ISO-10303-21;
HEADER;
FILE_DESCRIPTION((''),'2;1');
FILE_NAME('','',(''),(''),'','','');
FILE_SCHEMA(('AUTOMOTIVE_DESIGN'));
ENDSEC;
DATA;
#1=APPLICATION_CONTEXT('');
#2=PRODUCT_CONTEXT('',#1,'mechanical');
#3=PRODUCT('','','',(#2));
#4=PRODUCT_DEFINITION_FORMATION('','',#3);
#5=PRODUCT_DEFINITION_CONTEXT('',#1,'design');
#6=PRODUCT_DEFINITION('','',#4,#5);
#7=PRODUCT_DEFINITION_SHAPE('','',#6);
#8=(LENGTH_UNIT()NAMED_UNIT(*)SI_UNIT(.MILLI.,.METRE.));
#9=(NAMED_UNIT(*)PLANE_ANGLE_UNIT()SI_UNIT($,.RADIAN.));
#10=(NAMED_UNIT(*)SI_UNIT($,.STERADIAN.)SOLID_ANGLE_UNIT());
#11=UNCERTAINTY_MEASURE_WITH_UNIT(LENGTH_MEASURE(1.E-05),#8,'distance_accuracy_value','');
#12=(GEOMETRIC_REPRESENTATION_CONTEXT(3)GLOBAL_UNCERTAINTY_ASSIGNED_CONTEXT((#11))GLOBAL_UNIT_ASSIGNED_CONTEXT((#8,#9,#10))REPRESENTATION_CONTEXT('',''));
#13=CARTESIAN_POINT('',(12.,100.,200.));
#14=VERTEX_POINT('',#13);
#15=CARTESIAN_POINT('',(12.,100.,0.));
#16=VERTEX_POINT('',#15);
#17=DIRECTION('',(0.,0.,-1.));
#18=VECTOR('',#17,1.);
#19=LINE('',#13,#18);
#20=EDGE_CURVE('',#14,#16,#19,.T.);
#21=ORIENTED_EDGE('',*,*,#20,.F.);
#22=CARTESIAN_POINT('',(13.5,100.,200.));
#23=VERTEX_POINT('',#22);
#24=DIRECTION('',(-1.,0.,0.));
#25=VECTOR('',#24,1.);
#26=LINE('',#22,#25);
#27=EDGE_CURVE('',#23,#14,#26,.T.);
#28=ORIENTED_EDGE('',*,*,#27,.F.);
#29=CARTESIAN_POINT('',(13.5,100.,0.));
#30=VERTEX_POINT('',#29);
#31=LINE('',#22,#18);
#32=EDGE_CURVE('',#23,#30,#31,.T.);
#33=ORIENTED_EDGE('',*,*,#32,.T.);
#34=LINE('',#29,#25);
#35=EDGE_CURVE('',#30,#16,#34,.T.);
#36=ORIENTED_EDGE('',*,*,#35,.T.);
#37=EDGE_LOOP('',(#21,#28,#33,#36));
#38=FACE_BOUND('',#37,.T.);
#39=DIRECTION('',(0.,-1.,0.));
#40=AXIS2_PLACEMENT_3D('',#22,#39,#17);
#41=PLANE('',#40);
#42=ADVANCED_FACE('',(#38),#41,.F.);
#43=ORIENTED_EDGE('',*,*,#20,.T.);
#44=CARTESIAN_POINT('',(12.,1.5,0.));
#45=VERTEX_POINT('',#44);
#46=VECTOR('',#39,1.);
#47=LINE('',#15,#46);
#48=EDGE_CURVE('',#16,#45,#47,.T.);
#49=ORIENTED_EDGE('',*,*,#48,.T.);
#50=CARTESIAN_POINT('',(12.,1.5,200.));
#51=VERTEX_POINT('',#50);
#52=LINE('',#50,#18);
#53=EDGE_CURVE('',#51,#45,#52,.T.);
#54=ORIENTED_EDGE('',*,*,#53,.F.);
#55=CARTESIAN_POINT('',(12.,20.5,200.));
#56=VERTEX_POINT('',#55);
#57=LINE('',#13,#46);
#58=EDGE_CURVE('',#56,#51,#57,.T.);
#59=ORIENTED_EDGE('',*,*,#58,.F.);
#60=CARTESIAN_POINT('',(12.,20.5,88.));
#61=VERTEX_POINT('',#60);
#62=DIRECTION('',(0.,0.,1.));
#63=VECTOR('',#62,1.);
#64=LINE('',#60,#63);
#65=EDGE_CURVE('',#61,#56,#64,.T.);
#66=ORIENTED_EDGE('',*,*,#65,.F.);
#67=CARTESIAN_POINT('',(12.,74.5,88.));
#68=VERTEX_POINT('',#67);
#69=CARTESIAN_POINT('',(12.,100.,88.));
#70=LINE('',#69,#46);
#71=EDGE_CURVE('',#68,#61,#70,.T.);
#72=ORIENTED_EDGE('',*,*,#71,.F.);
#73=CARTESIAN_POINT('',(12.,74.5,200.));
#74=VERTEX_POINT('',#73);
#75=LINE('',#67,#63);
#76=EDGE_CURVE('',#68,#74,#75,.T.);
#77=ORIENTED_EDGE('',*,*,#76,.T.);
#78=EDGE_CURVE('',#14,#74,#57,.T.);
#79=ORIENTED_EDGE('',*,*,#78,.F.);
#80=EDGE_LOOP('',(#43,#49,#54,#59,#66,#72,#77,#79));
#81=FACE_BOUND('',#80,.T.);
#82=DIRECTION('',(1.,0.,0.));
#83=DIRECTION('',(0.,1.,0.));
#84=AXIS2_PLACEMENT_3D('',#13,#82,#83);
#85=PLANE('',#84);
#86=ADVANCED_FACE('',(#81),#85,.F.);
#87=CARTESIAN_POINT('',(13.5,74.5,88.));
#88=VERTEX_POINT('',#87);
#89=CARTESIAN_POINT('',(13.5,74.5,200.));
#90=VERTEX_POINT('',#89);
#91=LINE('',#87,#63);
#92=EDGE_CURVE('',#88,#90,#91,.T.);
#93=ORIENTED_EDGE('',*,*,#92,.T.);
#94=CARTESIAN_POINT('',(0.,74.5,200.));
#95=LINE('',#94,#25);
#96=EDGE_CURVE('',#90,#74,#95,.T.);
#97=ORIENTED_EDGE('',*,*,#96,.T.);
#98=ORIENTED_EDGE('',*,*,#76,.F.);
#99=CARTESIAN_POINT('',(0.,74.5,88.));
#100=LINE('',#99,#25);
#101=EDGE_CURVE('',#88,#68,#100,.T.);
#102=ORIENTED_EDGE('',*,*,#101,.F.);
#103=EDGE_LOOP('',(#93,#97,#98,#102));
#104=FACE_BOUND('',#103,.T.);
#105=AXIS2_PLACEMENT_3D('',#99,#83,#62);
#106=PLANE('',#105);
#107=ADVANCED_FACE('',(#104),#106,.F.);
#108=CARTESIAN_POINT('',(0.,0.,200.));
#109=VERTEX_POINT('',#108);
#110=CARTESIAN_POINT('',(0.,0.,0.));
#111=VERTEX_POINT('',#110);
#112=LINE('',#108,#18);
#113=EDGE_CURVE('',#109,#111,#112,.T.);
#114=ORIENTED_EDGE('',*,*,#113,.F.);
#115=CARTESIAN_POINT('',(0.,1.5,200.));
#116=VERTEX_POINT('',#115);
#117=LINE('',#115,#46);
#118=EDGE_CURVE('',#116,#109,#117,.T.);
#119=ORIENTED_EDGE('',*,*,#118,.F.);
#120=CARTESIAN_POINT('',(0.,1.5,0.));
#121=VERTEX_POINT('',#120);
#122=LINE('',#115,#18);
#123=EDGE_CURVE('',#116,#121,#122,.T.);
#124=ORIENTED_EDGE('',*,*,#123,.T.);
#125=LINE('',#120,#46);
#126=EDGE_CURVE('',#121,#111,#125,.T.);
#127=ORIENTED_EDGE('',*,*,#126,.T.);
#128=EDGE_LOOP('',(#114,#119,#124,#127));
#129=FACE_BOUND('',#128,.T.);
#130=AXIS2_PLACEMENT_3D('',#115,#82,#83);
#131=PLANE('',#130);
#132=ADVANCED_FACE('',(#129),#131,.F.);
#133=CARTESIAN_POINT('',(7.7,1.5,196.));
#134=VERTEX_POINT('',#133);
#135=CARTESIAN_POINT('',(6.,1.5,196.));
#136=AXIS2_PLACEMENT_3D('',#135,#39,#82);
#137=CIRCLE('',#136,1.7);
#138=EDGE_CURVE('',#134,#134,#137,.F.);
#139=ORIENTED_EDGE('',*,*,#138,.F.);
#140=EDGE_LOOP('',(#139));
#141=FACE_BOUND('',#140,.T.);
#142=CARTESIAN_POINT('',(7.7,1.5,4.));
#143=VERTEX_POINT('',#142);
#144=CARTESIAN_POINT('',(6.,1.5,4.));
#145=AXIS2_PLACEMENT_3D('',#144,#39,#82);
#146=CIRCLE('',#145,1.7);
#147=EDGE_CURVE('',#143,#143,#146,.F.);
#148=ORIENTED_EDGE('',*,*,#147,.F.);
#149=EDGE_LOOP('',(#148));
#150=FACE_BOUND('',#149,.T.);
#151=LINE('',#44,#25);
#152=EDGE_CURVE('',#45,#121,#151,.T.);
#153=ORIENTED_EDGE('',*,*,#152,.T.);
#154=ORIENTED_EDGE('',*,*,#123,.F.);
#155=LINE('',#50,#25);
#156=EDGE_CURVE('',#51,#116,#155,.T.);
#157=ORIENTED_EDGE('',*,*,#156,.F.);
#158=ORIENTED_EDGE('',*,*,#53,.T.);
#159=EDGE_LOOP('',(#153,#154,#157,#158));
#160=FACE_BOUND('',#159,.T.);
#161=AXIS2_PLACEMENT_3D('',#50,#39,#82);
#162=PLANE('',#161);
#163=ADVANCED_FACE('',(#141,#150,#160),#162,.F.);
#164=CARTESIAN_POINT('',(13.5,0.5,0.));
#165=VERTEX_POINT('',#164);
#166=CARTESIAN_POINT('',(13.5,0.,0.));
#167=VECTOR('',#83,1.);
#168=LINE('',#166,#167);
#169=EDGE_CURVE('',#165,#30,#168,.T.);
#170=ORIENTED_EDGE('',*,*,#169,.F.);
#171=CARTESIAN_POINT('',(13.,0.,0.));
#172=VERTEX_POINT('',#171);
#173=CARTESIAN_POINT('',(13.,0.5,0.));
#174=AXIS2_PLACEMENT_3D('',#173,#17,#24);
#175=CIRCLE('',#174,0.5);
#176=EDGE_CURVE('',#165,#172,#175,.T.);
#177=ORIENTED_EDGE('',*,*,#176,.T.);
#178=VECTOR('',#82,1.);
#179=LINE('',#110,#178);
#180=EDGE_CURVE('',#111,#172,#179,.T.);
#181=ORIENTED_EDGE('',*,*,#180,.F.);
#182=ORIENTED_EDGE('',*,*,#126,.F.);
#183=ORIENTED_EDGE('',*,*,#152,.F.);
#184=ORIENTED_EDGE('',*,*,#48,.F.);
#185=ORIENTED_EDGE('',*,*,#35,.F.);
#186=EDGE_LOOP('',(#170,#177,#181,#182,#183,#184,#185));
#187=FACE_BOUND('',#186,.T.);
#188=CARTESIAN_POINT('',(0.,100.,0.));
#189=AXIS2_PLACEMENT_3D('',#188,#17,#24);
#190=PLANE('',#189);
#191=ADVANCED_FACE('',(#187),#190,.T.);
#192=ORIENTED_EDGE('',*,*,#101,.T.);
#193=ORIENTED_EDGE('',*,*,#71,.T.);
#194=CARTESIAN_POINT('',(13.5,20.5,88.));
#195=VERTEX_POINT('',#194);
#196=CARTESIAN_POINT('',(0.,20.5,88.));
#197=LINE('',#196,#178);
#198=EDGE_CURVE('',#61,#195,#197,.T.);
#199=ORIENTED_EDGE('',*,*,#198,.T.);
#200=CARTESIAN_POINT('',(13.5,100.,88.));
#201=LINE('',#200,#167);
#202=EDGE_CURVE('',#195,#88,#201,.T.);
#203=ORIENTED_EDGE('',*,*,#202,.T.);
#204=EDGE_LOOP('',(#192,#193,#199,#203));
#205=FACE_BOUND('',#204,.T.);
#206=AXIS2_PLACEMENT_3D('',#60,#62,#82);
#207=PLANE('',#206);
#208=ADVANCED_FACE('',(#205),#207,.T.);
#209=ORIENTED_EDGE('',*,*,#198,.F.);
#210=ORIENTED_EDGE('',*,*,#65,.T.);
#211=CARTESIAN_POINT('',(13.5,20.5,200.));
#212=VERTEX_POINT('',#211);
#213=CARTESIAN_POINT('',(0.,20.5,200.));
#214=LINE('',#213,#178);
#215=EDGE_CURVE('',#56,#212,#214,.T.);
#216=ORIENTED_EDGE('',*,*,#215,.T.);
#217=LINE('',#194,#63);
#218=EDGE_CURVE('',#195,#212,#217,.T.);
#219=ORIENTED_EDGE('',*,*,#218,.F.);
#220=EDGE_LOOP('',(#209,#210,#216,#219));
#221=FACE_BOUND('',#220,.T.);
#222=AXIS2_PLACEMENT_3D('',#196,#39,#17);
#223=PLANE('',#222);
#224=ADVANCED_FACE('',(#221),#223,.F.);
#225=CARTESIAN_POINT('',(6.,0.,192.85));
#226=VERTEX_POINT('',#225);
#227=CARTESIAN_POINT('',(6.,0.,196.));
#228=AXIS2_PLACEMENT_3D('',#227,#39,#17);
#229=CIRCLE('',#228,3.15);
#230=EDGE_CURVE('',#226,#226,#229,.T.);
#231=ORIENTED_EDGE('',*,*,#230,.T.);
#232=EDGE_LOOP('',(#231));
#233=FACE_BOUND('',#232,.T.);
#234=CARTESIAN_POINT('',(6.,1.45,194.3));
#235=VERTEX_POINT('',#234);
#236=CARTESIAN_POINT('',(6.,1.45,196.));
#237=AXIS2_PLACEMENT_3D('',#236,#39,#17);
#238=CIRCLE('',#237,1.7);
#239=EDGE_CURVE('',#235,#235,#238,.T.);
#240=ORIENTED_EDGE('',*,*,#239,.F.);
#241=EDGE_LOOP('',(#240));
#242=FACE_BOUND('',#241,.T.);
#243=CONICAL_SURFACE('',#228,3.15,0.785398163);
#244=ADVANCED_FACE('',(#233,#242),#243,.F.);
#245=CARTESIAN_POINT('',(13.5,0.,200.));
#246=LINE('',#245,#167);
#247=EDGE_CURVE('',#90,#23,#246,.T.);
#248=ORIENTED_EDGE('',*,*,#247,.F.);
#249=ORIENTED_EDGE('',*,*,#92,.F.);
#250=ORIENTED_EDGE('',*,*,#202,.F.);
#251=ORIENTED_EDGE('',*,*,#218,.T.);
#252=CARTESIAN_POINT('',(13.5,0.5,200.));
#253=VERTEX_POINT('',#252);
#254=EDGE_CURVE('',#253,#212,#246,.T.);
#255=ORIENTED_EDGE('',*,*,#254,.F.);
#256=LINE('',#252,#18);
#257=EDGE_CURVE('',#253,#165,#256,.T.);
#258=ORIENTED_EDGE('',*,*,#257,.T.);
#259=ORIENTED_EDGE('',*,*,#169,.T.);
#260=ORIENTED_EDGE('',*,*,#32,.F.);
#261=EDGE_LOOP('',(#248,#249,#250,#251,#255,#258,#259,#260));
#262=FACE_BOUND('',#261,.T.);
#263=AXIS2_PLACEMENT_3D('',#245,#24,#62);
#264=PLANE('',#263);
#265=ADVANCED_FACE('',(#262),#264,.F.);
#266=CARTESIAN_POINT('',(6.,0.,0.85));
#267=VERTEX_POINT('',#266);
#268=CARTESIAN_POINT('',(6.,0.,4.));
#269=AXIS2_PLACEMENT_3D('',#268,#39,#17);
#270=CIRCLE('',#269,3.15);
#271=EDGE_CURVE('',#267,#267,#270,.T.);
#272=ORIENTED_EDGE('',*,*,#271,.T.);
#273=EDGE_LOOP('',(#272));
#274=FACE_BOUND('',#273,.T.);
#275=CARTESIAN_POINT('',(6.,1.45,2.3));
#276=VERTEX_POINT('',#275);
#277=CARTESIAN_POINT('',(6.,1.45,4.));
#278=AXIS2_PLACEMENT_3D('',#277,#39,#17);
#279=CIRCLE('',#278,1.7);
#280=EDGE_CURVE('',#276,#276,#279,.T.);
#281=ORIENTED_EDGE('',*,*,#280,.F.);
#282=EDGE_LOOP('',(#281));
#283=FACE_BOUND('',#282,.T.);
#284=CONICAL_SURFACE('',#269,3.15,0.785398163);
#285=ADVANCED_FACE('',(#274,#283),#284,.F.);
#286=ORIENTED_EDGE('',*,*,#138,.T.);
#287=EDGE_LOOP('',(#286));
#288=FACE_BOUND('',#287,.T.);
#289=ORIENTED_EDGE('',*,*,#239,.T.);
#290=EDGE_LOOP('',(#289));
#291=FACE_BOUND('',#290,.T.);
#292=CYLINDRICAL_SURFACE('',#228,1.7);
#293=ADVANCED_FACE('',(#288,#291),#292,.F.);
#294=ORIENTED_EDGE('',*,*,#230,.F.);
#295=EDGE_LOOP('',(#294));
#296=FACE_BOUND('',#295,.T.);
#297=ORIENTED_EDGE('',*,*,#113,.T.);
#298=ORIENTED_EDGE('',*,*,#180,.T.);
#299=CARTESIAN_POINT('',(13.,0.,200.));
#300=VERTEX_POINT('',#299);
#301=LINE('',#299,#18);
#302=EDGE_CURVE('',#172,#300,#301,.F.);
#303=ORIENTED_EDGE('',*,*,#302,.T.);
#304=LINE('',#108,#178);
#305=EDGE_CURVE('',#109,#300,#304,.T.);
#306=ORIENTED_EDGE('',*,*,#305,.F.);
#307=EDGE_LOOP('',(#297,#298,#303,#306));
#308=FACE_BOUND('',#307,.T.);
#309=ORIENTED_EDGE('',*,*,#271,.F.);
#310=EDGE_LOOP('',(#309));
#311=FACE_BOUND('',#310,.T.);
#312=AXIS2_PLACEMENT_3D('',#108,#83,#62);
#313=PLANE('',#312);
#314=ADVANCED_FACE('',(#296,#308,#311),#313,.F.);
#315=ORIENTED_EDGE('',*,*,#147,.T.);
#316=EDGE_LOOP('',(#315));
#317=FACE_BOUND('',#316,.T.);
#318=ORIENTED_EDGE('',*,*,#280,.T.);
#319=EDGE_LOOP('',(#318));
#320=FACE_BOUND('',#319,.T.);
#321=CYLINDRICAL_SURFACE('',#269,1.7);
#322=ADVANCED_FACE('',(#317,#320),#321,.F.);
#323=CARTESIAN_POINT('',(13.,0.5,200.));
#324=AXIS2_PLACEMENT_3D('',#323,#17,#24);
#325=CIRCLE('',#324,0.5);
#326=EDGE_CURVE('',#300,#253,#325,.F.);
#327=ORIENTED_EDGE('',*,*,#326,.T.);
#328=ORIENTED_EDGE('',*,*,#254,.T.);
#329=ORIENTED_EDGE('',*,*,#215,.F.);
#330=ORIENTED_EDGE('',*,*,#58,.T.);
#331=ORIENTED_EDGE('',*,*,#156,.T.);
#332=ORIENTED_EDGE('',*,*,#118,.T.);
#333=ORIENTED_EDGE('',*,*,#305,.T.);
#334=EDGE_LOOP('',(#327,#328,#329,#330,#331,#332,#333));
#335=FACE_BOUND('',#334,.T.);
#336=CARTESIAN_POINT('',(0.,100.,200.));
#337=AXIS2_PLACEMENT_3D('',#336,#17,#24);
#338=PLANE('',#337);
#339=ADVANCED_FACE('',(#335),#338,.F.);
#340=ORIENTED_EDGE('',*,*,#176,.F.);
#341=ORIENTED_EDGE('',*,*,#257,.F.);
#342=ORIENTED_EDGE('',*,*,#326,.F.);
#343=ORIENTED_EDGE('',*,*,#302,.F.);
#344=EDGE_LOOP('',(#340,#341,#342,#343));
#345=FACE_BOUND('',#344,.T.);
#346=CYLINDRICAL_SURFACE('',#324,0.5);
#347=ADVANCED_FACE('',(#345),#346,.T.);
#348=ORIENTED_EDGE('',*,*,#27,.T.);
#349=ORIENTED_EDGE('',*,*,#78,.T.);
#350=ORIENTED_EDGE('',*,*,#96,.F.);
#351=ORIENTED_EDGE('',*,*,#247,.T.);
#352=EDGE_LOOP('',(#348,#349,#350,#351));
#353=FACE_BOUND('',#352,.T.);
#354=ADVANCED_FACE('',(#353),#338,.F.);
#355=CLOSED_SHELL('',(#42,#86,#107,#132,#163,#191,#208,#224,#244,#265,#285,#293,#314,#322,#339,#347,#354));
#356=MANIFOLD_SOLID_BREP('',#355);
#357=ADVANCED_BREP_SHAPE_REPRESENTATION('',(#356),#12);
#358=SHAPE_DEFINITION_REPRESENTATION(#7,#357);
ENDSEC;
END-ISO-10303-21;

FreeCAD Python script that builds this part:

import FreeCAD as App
import Part
import Sketcher
from FreeCAD import Vector
Q = App.Units.Quantity


def edges_at(feature, points):
    """Names of the edges that pass closest to the given points."""
    edges = feature.Shape.Edges
    near = lambda p: min(range(len(edges)), key=lambda i: edges[i].distToShape(Part.Vertex(*p))[0])
    return sorted({f"Edge{near(p) + 1}" for p in points})

doc = App.newDocument("Part")
body = doc.addObject("PartDesign::Body", "Body")

sketch1 = body.newObject("Sketcher::SketchObject", "Sketch")
sketch1.AttachmentSupport = (doc.getObject("XY_Plane"), [""])
sketch1.MapMode = "FlatFace"
sketch1.addGeometry([
    Part.LineSegment(Vector(0, 0, 0), Vector(13.5, 0, 0)),
    Part.LineSegment(Vector(13.5, 0, 0), Vector(13.5, 100, 0)),
    Part.LineSegment(Vector(13.5, 100, 0), Vector(12, 100, 0)),
    Part.LineSegment(Vector(12, 100, 0), Vector(12, 1.5, 0)),
    Part.LineSegment(Vector(12, 1.5, 0), Vector(0, 1.5, 0)),
    Part.LineSegment(Vector(0, 1.5, 0), Vector(0, 0, 0)),
], False)
sketch1.addConstraint([
    Sketcher.Constraint("Coincident", 0, 2, 1, 1),
    Sketcher.Constraint("Coincident", 1, 2, 2, 1),
    Sketcher.Constraint("Coincident", 2, 2, 3, 1),
    Sketcher.Constraint("Coincident", 3, 2, 4, 1),
    Sketcher.Constraint("Coincident", 4, 2, 5, 1),
    Sketcher.Constraint("Coincident", 5, 2, 0, 1),
    Sketcher.Constraint("Horizontal", 0),
    Sketcher.Constraint("Vertical", 1),
    Sketcher.Constraint("Horizontal", 2),
    Sketcher.Constraint("Vertical", 3),
    Sketcher.Constraint("Horizontal", 4),
    Sketcher.Constraint("Vertical", 5),
    Sketcher.Constraint("Coincident", 5, 2, -1, 1),
    Sketcher.Constraint("Equal", 2, 5),
    Sketcher.Constraint("DistanceX", 4, 2, 4, 1, Q("12 mm")),
    Sketcher.Constraint("DistanceY", 1, 1, 1, 2, Q("100 mm")),
    Sketcher.Constraint("DistanceX", 0, 1, 0, 2, Q("13.5 mm")),
])
pad1 = body.newObject("PartDesign::Pad", "Pad")
pad1.Profile = sketch1
pad1.Length = 200
doc.recompute()

fillet = body.newObject("PartDesign::Fillet", "Fillet")
fillet.Base = (pad1, edges_at(pad1, [(13.5, 0, 100)]))
fillet.Radius = 0.5

sketch2 = body.newObject("Sketcher::SketchObject", "Sketch001")
sketch2.AttachmentSupport = (doc.getObject("XY_Plane"), [""])
sketch2.MapMode = "FlatFace"
sketch2.AttachmentOffset = App.Placement(Vector(0, 0, 200), App.Rotation())
sketch2.addGeometry([
    Part.LineSegment(Vector(12, 74.5, 0), Vector(12, 20.5, 0)),
    Part.LineSegment(Vector(12, 20.5, 0), Vector(13.5, 20.5, 0)),
    Part.LineSegment(Vector(13.5, 20.5, 0), Vector(13.5, 74.5, 0)),
    Part.LineSegment(Vector(13.5, 74.5, 0), Vector(12, 74.5, 0)),
], False)
sketch2.addConstraint([
    Sketcher.Constraint("Coincident", 0, 2, 1, 1),
    Sketcher.Constraint("Coincident", 1, 2, 2, 1),
    Sketcher.Constraint("Coincident", 2, 2, 3, 1),
    Sketcher.Constraint("Coincident", 3, 2, 0, 1),
    Sketcher.Constraint("Vertical", 0),
    Sketcher.Constraint("Horizontal", 1),
    Sketcher.Constraint("Vertical", 2),
    Sketcher.Constraint("Horizontal", 3),
    Sketcher.Constraint("DistanceY", 0, 2, 0, 1, Q("54 mm")),
    Sketcher.Constraint("DistanceX", 1, 1, 1, 2, Q("1.5 mm")),
    Sketcher.Constraint("DistanceX", -1, 1, 0, 2, Q("12 mm")),
    Sketcher.Constraint("DistanceY", -1, 1, 0, 2, Q("20.5 mm")),
])
pocket1 = body.newObject("PartDesign::Pocket", "Pocket")
pocket1.Profile = sketch2
pocket1.Length = 112

sketch3 = body.newObject("Sketcher::SketchObject", "Sketch002")
sketch3.AttachmentSupport = (doc.getObject("YZ_Plane"), [""])
sketch3.MapMode = "FlatFace"
sketch3.AttachmentOffset = App.Placement(Vector(0, 0, 6), App.Rotation())
sketch3.addGeometry([
    Part.LineSegment(Vector(2.521463, 196, 0), Vector(0, 196, 0)),
    Part.LineSegment(Vector(0, 196, 0), Vector(0, 192.85, 0)),
    Part.LineSegment(Vector(0, 192.85, 0), Vector(1.45, 194.3, 0)),
    Part.LineSegment(Vector(1.45, 194.3, 0), Vector(1.5, 194.3, 0)),
    Part.LineSegment(Vector(1.5, 194.3, 0), Vector(2.521463, 196, 0)),
], False)
sketch3.addGeometry(Part.LineSegment(Vector(0, 196, 0), Vector(2.521463, 196, 0)), True)
sketch3.addConstraint([
    Sketcher.Constraint("Coincident", 0, 2, 1, 1),
    Sketcher.Constraint("Coincident", 1, 2, 2, 1),
    Sketcher.Constraint("Coincident", 2, 2, 3, 1),
    Sketcher.Constraint("Coincident", 3, 2, 4, 1),
    Sketcher.Constraint("Coincident", 4, 2, 0, 1),
    Sketcher.Constraint("Horizontal", 0),
    Sketcher.Constraint("Vertical", 1),
    Sketcher.Constraint("Horizontal", 3),
    Sketcher.Constraint("Horizontal", 5),
    Sketcher.Constraint("Coincident", 5, 1, 0, 2),
    Sketcher.Constraint("PointOnObject", 0, 2, -2),
    Sketcher.Constraint("Equal", 0, 5),
    Sketcher.Constraint("Angle", 2, Q("45 deg")),
    Sketcher.Constraint("Angle", 4, Q("59 deg")),
    Sketcher.Constraint("DistanceY", -1, 1, 0, 2, Q("196 mm")),
    Sketcher.Constraint("DistanceX", 3, 1, 3, 2, Q("0.05 mm")),
    Sketcher.Constraint("DistanceY", 1, 2, 1, 1, Q("3.15 mm")),
    Sketcher.Constraint("DistanceY", -1, 1, 2, 2, Q("194.3 mm")),
])
groove = body.newObject("PartDesign::Groove", "Groove")
groove.Profile = sketch3
groove.ReferenceAxis = (sketch3, ["Axis0"])
groove.Angle = 360
doc.recompute()

linearpattern = body.newObject("PartDesign::LinearPattern", "LinearPattern")
linearpattern.Originals = [groove]
linearpattern.Direction = (doc.getObject("Z_Axis"), [""])
linearpattern.Mode = "offset"
linearpattern.Offset = 192
linearpattern.Occurrences = 2
linearpattern.Reversed = True
body.Tip = linearpattern

doc.recompute()
